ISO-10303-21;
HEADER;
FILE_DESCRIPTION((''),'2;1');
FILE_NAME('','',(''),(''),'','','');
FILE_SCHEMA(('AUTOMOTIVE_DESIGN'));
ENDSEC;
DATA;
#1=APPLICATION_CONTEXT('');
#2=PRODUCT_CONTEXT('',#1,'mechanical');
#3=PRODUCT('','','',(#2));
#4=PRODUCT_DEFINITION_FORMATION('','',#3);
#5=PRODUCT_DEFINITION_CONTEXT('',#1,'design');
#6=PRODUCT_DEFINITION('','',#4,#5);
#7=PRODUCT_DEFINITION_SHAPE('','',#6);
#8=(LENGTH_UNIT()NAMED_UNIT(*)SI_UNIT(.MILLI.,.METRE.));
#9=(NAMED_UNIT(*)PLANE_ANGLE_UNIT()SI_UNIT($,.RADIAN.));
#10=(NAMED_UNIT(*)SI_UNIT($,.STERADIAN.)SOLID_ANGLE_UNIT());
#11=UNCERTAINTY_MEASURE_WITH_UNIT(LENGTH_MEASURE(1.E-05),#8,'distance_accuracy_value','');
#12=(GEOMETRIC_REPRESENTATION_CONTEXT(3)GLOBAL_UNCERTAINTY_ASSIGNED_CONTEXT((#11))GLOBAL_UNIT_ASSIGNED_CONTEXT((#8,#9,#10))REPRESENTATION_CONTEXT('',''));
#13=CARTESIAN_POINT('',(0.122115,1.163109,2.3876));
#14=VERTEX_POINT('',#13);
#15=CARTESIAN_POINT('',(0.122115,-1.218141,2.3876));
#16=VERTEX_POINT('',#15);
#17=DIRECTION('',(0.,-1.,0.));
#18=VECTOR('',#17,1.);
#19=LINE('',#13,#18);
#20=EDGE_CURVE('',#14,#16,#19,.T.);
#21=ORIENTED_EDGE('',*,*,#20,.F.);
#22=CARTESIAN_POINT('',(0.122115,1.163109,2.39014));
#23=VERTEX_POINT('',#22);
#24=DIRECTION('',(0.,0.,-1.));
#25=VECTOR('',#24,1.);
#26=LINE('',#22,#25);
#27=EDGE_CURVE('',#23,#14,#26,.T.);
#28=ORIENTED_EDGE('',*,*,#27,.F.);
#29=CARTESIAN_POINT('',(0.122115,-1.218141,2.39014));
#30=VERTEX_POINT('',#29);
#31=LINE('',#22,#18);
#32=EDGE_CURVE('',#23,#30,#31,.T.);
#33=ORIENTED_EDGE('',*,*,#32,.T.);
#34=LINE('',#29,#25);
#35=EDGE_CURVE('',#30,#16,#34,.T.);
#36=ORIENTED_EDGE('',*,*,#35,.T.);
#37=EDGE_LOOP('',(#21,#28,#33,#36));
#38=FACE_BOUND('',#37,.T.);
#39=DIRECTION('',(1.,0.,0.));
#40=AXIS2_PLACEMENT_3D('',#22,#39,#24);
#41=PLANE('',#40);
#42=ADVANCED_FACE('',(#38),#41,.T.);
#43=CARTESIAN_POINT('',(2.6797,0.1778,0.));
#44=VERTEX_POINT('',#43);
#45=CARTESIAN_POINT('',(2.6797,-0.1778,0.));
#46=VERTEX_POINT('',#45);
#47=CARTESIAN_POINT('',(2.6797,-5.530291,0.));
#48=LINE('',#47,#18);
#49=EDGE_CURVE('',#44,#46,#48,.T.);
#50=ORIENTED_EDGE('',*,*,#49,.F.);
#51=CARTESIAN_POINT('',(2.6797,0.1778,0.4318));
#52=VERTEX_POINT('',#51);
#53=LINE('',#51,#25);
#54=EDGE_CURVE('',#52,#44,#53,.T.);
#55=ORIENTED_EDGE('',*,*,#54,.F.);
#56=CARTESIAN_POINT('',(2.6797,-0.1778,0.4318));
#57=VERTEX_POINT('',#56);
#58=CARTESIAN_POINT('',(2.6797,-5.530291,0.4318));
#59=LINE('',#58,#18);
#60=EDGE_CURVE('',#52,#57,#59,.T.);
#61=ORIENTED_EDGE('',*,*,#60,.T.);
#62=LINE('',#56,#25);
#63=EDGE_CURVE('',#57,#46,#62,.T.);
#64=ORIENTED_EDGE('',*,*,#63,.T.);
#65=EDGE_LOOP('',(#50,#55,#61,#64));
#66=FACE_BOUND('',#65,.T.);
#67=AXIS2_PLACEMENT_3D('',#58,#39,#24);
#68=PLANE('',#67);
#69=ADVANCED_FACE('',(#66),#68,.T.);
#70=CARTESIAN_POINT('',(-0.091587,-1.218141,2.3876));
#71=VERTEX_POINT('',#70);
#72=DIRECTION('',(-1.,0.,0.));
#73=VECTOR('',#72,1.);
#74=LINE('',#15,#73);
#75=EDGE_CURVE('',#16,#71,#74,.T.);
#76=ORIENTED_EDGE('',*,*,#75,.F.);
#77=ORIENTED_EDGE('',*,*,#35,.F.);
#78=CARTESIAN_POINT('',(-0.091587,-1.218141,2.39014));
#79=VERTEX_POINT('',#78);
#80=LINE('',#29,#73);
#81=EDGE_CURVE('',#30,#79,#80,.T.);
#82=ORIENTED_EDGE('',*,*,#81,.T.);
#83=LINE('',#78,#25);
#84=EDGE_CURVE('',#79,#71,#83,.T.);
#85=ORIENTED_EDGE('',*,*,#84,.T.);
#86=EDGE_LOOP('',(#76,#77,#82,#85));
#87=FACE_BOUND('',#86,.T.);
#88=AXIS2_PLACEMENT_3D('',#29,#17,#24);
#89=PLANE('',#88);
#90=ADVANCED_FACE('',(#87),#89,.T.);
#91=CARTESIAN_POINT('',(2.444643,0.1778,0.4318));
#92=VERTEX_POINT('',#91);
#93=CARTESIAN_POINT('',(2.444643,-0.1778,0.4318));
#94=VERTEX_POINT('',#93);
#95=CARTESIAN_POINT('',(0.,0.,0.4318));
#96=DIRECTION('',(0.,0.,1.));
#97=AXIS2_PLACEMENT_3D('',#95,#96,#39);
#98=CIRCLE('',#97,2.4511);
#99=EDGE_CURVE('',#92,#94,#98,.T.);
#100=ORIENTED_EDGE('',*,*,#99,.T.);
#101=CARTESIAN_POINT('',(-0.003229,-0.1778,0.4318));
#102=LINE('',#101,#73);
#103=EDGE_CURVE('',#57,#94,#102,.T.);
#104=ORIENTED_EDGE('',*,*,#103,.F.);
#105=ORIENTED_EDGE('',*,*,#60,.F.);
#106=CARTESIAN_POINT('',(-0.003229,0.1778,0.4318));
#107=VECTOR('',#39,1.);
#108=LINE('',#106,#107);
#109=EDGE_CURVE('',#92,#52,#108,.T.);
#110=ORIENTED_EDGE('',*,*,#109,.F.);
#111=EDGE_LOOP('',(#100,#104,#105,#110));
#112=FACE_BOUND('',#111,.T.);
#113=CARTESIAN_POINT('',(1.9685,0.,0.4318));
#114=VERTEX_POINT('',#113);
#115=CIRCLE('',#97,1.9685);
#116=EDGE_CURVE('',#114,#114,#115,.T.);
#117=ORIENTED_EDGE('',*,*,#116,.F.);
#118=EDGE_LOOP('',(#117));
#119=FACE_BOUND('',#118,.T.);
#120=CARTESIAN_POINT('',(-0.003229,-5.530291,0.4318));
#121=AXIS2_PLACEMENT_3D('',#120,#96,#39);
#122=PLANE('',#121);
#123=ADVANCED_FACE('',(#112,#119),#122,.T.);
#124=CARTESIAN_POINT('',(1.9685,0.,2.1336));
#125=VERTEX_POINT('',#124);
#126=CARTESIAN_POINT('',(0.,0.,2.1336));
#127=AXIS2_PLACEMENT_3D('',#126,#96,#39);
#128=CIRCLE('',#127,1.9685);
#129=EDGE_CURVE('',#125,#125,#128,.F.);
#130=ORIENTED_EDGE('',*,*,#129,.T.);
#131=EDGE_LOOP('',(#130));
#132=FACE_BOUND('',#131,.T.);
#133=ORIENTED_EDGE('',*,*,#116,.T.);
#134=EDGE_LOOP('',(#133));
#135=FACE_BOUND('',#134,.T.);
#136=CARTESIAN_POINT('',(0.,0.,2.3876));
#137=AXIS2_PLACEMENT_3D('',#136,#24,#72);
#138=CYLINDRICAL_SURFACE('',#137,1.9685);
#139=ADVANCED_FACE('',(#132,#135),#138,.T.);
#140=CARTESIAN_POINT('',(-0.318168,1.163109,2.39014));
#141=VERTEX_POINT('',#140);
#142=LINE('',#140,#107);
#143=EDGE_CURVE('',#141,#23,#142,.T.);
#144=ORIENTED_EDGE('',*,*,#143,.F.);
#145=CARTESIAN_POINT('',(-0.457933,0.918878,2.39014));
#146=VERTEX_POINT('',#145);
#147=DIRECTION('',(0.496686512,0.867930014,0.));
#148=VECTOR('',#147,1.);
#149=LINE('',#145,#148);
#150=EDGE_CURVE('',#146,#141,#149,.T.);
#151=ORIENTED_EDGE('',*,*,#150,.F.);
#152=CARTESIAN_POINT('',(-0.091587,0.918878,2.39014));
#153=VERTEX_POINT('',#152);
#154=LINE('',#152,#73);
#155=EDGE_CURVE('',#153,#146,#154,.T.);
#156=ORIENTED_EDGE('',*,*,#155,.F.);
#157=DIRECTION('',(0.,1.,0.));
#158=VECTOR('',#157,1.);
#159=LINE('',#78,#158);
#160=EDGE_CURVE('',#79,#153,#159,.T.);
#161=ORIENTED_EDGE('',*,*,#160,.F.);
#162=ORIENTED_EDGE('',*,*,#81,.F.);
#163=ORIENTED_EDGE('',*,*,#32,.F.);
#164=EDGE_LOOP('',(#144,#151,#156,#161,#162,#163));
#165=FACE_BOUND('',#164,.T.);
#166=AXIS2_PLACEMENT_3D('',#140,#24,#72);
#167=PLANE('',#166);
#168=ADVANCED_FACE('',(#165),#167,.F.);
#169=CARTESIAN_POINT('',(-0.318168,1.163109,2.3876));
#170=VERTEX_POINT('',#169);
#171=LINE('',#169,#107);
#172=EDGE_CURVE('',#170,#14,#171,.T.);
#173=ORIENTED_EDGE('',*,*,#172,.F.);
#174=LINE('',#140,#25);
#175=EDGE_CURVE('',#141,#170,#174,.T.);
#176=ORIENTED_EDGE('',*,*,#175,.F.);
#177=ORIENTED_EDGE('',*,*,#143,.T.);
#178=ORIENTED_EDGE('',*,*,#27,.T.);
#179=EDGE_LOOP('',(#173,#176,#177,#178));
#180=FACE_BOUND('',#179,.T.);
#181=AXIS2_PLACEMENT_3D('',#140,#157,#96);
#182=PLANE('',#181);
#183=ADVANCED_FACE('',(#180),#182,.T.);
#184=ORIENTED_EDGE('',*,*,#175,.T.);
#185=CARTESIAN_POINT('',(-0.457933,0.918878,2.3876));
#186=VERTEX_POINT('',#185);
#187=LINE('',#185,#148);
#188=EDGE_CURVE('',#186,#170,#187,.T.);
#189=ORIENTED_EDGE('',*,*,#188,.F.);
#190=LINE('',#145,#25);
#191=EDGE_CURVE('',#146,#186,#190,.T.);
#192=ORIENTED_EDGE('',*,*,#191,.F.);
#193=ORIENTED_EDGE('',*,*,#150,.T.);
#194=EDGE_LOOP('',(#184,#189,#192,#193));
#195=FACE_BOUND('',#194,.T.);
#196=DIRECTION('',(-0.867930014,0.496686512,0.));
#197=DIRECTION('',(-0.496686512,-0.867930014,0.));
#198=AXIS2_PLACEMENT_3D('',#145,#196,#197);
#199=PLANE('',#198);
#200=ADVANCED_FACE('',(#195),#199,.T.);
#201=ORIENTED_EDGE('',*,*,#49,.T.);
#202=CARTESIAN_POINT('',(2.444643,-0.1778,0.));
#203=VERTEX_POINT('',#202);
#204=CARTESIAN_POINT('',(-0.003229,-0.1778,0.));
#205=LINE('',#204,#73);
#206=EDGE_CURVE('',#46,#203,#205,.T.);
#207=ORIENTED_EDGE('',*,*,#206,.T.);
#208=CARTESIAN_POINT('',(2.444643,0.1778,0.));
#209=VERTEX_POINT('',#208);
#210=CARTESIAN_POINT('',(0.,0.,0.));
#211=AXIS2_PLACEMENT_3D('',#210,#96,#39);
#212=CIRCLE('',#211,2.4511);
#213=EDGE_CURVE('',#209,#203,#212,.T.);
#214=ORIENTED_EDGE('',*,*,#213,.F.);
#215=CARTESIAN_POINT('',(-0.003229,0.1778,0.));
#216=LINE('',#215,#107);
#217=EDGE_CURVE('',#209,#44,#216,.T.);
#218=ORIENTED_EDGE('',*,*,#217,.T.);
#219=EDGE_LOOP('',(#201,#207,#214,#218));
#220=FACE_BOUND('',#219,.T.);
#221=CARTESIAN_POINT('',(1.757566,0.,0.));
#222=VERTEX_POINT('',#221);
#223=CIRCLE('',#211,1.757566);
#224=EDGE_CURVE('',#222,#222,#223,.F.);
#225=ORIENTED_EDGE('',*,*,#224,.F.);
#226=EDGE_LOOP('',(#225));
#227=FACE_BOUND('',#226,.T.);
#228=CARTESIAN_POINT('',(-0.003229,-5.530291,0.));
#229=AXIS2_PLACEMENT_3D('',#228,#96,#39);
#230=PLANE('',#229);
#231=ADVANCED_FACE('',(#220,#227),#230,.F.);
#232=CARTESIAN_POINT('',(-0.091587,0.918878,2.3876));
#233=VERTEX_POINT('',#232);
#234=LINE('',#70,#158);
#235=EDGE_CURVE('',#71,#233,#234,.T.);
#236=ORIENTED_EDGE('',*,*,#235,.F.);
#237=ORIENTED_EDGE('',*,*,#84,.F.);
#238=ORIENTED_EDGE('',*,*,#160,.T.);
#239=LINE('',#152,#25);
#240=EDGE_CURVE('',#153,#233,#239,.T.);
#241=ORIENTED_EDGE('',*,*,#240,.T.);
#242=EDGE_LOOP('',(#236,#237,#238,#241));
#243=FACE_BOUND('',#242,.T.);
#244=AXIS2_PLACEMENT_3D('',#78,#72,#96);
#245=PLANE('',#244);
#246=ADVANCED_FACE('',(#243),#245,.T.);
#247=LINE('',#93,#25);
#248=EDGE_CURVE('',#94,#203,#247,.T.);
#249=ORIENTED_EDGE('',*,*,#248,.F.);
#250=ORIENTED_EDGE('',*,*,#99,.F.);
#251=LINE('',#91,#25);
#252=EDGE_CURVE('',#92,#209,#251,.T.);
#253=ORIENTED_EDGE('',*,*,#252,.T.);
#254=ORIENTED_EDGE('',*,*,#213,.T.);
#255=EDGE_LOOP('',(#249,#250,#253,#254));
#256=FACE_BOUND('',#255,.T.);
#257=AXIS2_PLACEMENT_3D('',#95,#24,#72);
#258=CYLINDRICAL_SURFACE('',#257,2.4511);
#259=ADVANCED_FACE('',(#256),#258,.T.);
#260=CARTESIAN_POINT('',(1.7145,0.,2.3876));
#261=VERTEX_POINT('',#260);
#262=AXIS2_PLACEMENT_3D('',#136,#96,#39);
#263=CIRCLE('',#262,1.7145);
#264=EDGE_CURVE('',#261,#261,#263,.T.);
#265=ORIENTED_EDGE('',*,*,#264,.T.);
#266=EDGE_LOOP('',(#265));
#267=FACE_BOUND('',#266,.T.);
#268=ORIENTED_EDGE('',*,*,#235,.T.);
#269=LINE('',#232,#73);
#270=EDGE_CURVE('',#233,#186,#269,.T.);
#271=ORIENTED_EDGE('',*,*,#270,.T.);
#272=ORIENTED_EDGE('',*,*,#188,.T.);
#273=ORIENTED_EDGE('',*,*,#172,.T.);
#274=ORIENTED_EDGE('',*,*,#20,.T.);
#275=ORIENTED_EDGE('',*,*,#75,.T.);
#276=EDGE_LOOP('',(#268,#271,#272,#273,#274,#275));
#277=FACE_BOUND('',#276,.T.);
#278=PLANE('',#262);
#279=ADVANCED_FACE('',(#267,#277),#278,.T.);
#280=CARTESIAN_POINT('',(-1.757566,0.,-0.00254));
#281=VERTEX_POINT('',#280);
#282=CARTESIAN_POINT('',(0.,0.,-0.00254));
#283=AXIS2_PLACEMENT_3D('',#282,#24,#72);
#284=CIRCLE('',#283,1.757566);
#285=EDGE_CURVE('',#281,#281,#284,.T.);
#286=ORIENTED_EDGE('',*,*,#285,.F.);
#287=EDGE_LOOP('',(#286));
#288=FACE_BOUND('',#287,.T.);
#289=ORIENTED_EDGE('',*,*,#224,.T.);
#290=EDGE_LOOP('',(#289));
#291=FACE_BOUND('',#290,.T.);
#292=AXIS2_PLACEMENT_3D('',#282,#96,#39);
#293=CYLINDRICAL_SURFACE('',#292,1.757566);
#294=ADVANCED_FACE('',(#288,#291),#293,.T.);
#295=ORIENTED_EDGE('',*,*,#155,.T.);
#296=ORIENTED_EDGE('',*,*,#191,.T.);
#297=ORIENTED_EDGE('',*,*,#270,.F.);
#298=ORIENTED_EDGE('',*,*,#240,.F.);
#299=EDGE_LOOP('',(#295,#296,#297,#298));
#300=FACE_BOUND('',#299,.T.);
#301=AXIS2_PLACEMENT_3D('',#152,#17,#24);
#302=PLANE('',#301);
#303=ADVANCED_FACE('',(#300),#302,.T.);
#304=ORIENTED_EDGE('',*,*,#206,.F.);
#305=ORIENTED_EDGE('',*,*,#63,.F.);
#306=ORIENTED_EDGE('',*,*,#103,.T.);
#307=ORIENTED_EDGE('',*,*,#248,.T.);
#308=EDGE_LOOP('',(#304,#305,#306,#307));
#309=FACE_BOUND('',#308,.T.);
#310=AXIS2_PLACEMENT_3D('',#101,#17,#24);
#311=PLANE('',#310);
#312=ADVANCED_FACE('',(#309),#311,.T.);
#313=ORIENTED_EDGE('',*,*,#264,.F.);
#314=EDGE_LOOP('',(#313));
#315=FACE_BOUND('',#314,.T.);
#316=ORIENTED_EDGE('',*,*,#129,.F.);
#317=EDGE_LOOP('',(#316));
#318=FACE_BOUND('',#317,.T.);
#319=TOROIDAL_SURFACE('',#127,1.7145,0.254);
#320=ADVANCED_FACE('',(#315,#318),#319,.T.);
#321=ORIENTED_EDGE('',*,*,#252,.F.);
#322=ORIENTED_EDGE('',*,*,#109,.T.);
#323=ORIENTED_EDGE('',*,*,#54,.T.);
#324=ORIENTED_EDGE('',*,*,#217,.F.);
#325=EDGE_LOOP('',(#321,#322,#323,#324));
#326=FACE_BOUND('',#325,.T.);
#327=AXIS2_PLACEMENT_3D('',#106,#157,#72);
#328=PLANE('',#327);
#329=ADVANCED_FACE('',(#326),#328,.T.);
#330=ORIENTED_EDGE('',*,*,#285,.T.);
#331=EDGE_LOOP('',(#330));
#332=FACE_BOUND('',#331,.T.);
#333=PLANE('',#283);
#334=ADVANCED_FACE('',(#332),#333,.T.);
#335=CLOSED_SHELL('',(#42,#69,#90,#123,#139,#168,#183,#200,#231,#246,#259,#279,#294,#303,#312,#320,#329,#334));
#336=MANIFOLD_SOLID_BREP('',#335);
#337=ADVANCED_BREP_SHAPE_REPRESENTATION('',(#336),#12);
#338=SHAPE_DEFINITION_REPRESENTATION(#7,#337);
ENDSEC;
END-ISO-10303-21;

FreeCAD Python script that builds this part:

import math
import FreeCAD as App
import Part
import Sketcher
Q = App.Units.Quantity


def edges_at(feature, points):
    """Names of the edges that pass closest to the given points."""
    edges = feature.Shape.Edges
    near = lambda p: min(range(len(edges)), key=lambda i: edges[i].distToShape(Part.Vertex(*p))[0])
    return sorted({f"Edge{near(p) + 1}" for p in points})


def add_polygon(sketch, points):
    """Adds a closed chain of lines whose ends are joined by coincident constraints."""
    first, n = sketch.GeometryCount, len(points)
    for a, b in zip(points, points[1:] + points[:1]):
        sketch.addGeometry(Part.LineSegment(App.Vector(*a, 0), App.Vector(*b, 0)), False)
    for i in range(n):
        sketch.addConstraint(Sketcher.Constraint("Coincident", first + i, 2, first + (i + 1) % n, 1))

doc = App.newDocument("Part")
body = doc.addObject("PartDesign::Body", "Body")

# Sketch on XY plane
sketch1 = body.newObject("Sketcher::SketchObject", "Sketch")
sketch1.AttachmentSupport = (doc.getObject("XY_Plane"), [""])
sketch1.MapMode = "FlatFace"
sketch1.addGeometry(Part.LineSegment(App.Vector(2.68, 0.18, 0), App.Vector(2.44, 0.18, 0)), False)
sketch1.addGeometry(Part.ArcOfCircle(Part.Circle(App.Vector(0, 0, 0), App.Vector(0, 0, 1), 2.45), math.radians(4), math.radians(356)), False)
sketch1.addGeometry(Part.LineSegment(App.Vector(2.44, -0.18, 0), App.Vector(2.68, -0.18, 0)), False)
sketch1.addGeometry(Part.LineSegment(App.Vector(2.68, -0.18, 0), App.Vector(2.68, 0.18, 0)), False)
sketch1.addConstraint(Sketcher.Constraint("Coincident", 0, 2, 1, 1))
sketch1.addConstraint(Sketcher.Constraint("Coincident", 1, 2, 2, 1))
sketch1.addConstraint(Sketcher.Constraint("Coincident", 2, 2, 3, 1))
sketch1.addConstraint(Sketcher.Constraint("Coincident", 3, 2, 0, 1))
sketch1.addConstraint(Sketcher.Constraint("Horizontal", 0))
sketch1.addConstraint(Sketcher.Constraint("Horizontal", 2))
sketch1.addConstraint(Sketcher.Constraint("Vertical", 3))
sketch1.addConstraint(Sketcher.Constraint("Coincident", 1, 3, -1, 1))
sketch1.addConstraint(Sketcher.Constraint("Vertical", 0, 2, 1, 2))
sketch1.addConstraint(Sketcher.Constraint("Radius", 1, Q("0.0965 in")))
sketch1.addConstraint(Sketcher.Constraint("DistanceY", 3, 1, 3, 2, Q("0.014 in")))
sketch1.addConstraint(Sketcher.Constraint("DistanceX", -1, 1, 2, 2, Q("0.1055 in")))
pad1 = body.newObject("PartDesign::Pad", "Pad")
pad1.Profile = sketch1
pad1.Length = Q("0.017 in")

# Sketch on XY plane
sketch2 = body.newObject("Sketcher::SketchObject", "Sketch001")
sketch2.AttachmentSupport = (doc.getObject("XY_Plane"), [""])
sketch2.MapMode = "FlatFace"
sketch2.AttachmentOffset = App.Placement(App.Vector(0, 0, 0.017 * 25.4), App.Rotation())
sketch2.addGeometry(Part.Circle(App.Vector(0, 0, 0), App.Vector(0, 0, 1), 2), False)
sketch2.addConstraint(Sketcher.Constraint("Coincident", 0, 3, -1, 1))
sketch2.addConstraint(Sketcher.Constraint("Diameter", 0, Q("0.155 in")))
pad2 = body.newObject("PartDesign::Pad", "Pad001")
pad2.Profile = sketch2
pad2.Length = Q("0.077 in")

# Sketch on XY plane
sketch3 = body.newObject("Sketcher::SketchObject", "Sketch002")
sketch3.AttachmentSupport = (doc.getObject("XY_Plane"), [""])
sketch3.MapMode = "FlatFace"
sketch3.addGeometry(Part.Circle(App.Vector(0, 0, 0), App.Vector(0, 0, 1), 1.8), False)
sketch3.addConstraint(Sketcher.Constraint("Coincident", 0, 3, -1, 1))
sketch3.addConstraint(Sketcher.Constraint("Diameter", 0, 3.515133))
pad3 = body.newObject("PartDesign::Pad", "Pad002")
pad3.Profile = sketch3
pad3.Length = Q("0.0001 in")
pad3.Reversed = True
doc.recompute()

fillet = body.newObject("PartDesign::Fillet", "Fillet")
fillet.Base = (pad3, edges_at(pad3, [(-1.968, 0, 2.388)]))
fillet.Radius = Q("0.01 in")

# Sketch on XY plane
sketch4 = body.newObject("Sketcher::SketchObject", "Sketch003")
sketch4.AttachmentSupport = (doc.getObject("XY_Plane"), [""])
sketch4.MapMode = "FlatFace"
sketch4.AttachmentOffset = App.Placement(App.Vector(0, 0, 0.094 * 25.4), App.Rotation())
add_polygon(sketch4, [(0.12, 1.16), (-0.32, 1.16), (-0.46, 0.92), (-0.09, 0.92), (-0.09, -1.22), (0.12, -1.22)])  # lines 0-5
sketch4.addConstraint(Sketcher.Constraint("Horizontal", 0))
sketch4.addConstraint(Sketcher.Constraint("Horizontal", 2))
sketch4.addConstraint(Sketcher.Constraint("Vertical", 3))
sketch4.addConstraint(Sketcher.Constraint("Horizontal", 4))
sketch4.addConstraint(Sketcher.Constraint("Vertical", 5))
sketch4.addConstraint(Sketcher.Constraint("DistanceY", 5, 1, 5, 2, Q("0.09375 in")))
sketch4.addConstraint(Sketcher.Constraint("DistanceX", 4, 1, 4, 2, 0.213702))
sketch4.addConstraint(Sketcher.Constraint("DistanceY", 3, 2, 3, 1, 2.137019))
sketch4.addConstraint(Sketcher.Constraint("DistanceX", 0, 2, 0, 1, 0.440283))
sketch4.addConstraint(Sketcher.Constraint("DistanceX", 2, 1, 2, 2, 0.366346))
sketch4.addConstraint(Sketcher.Constraint("DistanceY", -1, 1, 0, 2, 1.163109))
sketch4.addConstraint(Sketcher.Constraint("DistanceX", 0, 2, -1, 1, 0.318168))
pad4 = body.newObject("PartDesign::Pad", "Pad003")
pad4.Profile = sketch4
pad4.Length = Q("0.0001 in")

doc.recompute()
